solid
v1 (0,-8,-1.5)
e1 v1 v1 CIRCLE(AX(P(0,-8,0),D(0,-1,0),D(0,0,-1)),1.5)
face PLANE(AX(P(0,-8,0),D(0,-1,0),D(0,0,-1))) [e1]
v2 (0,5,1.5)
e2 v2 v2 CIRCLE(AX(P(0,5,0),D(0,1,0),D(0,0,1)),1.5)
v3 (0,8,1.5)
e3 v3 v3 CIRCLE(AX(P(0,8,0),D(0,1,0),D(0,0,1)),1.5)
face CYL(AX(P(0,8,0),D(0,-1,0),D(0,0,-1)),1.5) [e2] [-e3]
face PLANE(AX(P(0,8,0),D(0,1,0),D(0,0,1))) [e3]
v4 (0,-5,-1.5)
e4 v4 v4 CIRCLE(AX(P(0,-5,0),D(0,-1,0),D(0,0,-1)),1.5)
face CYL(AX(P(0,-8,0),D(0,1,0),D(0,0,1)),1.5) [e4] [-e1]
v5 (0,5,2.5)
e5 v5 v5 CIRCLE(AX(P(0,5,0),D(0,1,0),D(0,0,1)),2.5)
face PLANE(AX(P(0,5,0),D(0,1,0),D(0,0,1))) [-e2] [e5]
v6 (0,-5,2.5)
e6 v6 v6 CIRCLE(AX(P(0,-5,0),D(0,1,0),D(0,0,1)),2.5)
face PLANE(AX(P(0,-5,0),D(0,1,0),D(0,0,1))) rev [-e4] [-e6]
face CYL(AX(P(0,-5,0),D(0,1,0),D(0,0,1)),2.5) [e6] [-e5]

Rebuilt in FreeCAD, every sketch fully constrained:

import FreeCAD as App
import Part
import Sketcher
Q = App.Units.Quantity

doc = App.newDocument("Part")
body = doc.addObject("PartDesign::Body", "Body")

sketch1 = body.newObject("Sketcher::SketchObject", "Sketch")
sketch1.AttachmentSupport = (doc.getObject("XZ_Plane"), [""])
sketch1.MapMode = "FlatFace"
sketch1.addGeometry(Part.Circle(App.Vector(0, 0, 0), App.Vector(0, 0, 1), 2.5), False)
sketch1.addConstraint([
    Sketcher.Constraint("Coincident", 0, 3, -1, 1),
    Sketcher.Constraint("Diameter", 0, Q("5 mm")),
])
pad1 = body.newObject("PartDesign::Pad", "Pad")
pad1.Profile = sketch1
pad1.Length = 10
pad1.Midplane = True

sketch2 = body.newObject("Sketcher::SketchObject", "Sketch001")
sketch2.AttachmentSupport = (doc.getObject("XZ_Plane"), [""])
sketch2.MapMode = "FlatFace"
sketch2.AttachmentOffset = App.Placement(App.Vector(0, 0, -5), App.Rotation())
sketch2.addGeometry(Part.Circle(App.Vector(0, 0, 0), App.Vector(0, 0, 1), 1.5), False)
sketch2.addConstraint([
    Sketcher.Constraint("Coincident", 0, 3, -1, 1),
    Sketcher.Constraint("Diameter", 0, Q("3 mm")),
])
pad2 = body.newObject("PartDesign::Pad", "Pad001")
pad2.Profile = sketch2
pad2.Length = 3
pad2.Reversed = True

sketch3 = body.newObject("Sketcher::SketchObject", "Sketch002")
sketch3.AttachmentSupport = (doc.getObject("XZ_Plane"), [""])
sketch3.MapMode = "FlatFace"
sketch3.AttachmentOffset = App.Placement(App.Vector(0, 0, 8), App.Rotation())
sketch3.addGeometry(Part.Circle(App.Vector(0, 0, 0), App.Vector(0, 0, 1), 1.5), False)
sketch3.addConstraint([
    Sketcher.Constraint("Coincident", 0, 3, -1, 1),
    Sketcher.Constraint("Diameter", 0, Q("3 mm")),
])
pad3 = body.newObject("PartDesign::Pad", "Pad002")
pad3.Profile = sketch3
pad3.Length = 3
pad3.Reversed = True

doc.recompute()
